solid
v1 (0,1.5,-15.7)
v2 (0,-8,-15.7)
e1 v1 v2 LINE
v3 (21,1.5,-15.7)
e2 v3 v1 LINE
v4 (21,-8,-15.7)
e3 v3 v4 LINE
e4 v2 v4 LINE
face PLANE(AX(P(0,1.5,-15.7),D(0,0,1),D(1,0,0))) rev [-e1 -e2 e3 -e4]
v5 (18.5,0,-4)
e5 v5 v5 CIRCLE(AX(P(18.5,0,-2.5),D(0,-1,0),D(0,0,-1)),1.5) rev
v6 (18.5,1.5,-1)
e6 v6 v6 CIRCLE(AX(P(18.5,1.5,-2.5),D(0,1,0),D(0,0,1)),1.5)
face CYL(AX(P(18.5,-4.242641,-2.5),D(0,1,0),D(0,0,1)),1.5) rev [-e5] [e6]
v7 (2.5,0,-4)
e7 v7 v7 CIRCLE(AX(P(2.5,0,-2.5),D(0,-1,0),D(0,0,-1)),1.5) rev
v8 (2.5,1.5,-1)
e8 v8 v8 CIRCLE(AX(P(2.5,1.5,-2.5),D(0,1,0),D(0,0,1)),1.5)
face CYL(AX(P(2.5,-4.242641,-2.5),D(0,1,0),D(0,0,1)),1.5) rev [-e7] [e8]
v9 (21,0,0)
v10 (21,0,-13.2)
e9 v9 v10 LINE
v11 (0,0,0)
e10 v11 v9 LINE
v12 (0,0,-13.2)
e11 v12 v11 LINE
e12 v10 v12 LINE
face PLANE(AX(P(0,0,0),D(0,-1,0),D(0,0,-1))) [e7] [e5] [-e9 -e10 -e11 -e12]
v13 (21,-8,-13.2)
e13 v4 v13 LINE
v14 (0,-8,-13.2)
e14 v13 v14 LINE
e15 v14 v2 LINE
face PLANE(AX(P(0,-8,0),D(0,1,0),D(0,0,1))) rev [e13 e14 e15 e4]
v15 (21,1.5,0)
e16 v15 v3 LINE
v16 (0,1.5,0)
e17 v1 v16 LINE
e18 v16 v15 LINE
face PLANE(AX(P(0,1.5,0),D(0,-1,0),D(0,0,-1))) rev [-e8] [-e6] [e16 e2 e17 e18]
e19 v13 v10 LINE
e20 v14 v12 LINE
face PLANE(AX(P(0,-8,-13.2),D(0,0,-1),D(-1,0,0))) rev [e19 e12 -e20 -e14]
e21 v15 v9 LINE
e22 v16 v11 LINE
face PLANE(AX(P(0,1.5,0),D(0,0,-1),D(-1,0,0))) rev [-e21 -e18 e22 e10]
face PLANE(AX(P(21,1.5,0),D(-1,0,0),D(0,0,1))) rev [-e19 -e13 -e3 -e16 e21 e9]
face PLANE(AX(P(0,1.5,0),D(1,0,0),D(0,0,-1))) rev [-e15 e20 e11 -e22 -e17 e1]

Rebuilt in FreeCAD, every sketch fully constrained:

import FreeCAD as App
import Part
import Sketcher

V = App.Vector


def add_polygon(sketch, points):
    """Adds a closed chain of lines whose ends are joined by coincident constraints."""
    first, n = sketch.GeometryCount, len(points)
    for a, b in zip(points, points[1:] + points[:1]):
        sketch.addGeometry(Part.LineSegment(App.Vector(*a, 0), App.Vector(*b, 0)), False)
    for i in range(n):
        sketch.addConstraint(Sketcher.Constraint("Coincident", first + i, 2, first + (i + 1) % n, 1))

doc = App.newDocument("Part")
params = doc.addObject("Spreadsheet::Sheet", "Params")
for row, (alias, value) in enumerate([
    ("sketch1_width", "21 mm"),
    ("sketch1_height", "15.7 mm"),
    ("pad1_length", "1.5 mm"),
    ("sketch2_diameter", "3 mm"),
    ("pocket1_length", "1.5 mm"),
    ("sketch3_width", "21 mm"),
    ("sketch3_height", "2.5 mm"),
    ("pad2_length", "8 mm"),
], start=1):
    params.set(f"A{row}", alias)
    params.set(f"B{row}", "=" + value)
    params.setAlias(f"B{row}", alias)

body = doc.addObject("PartDesign::Body", "Body")

sketch1 = body.newObject("Sketcher::SketchObject", "Sketch")
sketch1.AttachmentSupport = (doc.getObject("XZ_Plane"), [""])
sketch1.MapMode = "FlatFace"
add_polygon(sketch1, [(0, -16), (0, 0), (21, 0), (21, -16)])
sketch1.addConstraint(Sketcher.Constraint("Vertical", 0))
sketch1.addConstraint(Sketcher.Constraint("Horizontal", 1))
sketch1.addConstraint(Sketcher.Constraint("Vertical", 2))
sketch1.addConstraint(Sketcher.Constraint("Horizontal", 3))
sketch1.addConstraint(Sketcher.Constraint("Coincident", 0, 2, -1, 1))
sketch1.addConstraint(Sketcher.Constraint("DistanceX", 1, 1, 1, 2, 21.0))
sketch1.addConstraint(Sketcher.Constraint("DistanceY", 0, 1, 0, 2, 15.7))
sketch1.setExpression("Constraints[9]", "Params.sketch1_width")
sketch1.setExpression("Constraints[10]", "Params.sketch1_height")
pad1 = body.newObject("PartDesign::Pad", "Pad")
pad1.Profile = sketch1
pad1.setExpression("Length", "Params.pad1_length")
pad1.Reversed = True

sketch2 = body.newObject("Sketcher::SketchObject", "Sketch001")
sketch2.AttachmentSupport = (doc.getObject("XZ_Plane"), [""])
sketch2.MapMode = "FlatFace"
sketch2.AttachmentOffset = App.Placement(V(0, 0, -1.5), App.Rotation())
sketch2.addGeometry(Part.Circle(V(2.5, -2.5, 0), V(0, 0, 1), 1.5), False)
sketch2.addGeometry(Part.Circle(V(18.5, -2.5, 0), V(0, 0, 1), 1.5), False)
sketch2.addConstraint(Sketcher.Constraint("Equal", 0, 1))
sketch2.addConstraint(Sketcher.Constraint("Horizontal", 0, 3, 1, 3))
sketch2.addConstraint(Sketcher.Constraint("Diameter", 0, 3.0))
sketch2.addConstraint(Sketcher.Constraint("DistanceX", 0, 3, 1, 3, 16.0))
sketch2.addConstraint(Sketcher.Constraint("DistanceX", -1, 1, 0, 3, 2.5))
sketch2.addConstraint(Sketcher.Constraint("DistanceY", 0, 3, -1, 1, 2.5))
sketch2.setExpression("Constraints[2]", "Params.sketch2_diameter")
pocket1 = body.newObject("PartDesign::Pocket", "Pocket")
pocket1.Profile = sketch2
pocket1.setExpression("Length", "Params.pocket1_length")
pocket1.Reversed = True

sketch3 = body.newObject("Sketcher::SketchObject", "Sketch002")
sketch3.AttachmentSupport = (doc.getObject("XZ_Plane"), [""])
sketch3.MapMode = "FlatFace"
add_polygon(sketch3, [(0, -13.2), (0, -15.7), (21, -15.7), (21, -13.2)])
sketch3.addConstraint(Sketcher.Constraint("Vertical", 0))
sketch3.addConstraint(Sketcher.Constraint("Horizontal", 1))
sketch3.addConstraint(Sketcher.Constraint("Vertical", 2))
sketch3.addConstraint(Sketcher.Constraint("Horizontal", 3))
sketch3.addConstraint(Sketcher.Constraint("PointOnObject", 0, 2, -2))
sketch3.addConstraint(Sketcher.Constraint("DistanceX", 1, 1, 1, 2, 21.0))
sketch3.addConstraint(Sketcher.Constraint("DistanceY", 0, 2, 0, 1, 2.5))
sketch3.addConstraint(Sketcher.Constraint("DistanceY", 0, 2, -1, 1, 15.7))
sketch3.setExpression("Constraints[9]", "Params.sketch3_width")
sketch3.setExpression("Constraints[10]", "Params.sketch3_height")
pad2 = body.newObject("PartDesign::Pad", "Pad001")
pad2.Profile = sketch3
pad2.setExpression("Length", "Params.pad2_length")

doc.recompute()
